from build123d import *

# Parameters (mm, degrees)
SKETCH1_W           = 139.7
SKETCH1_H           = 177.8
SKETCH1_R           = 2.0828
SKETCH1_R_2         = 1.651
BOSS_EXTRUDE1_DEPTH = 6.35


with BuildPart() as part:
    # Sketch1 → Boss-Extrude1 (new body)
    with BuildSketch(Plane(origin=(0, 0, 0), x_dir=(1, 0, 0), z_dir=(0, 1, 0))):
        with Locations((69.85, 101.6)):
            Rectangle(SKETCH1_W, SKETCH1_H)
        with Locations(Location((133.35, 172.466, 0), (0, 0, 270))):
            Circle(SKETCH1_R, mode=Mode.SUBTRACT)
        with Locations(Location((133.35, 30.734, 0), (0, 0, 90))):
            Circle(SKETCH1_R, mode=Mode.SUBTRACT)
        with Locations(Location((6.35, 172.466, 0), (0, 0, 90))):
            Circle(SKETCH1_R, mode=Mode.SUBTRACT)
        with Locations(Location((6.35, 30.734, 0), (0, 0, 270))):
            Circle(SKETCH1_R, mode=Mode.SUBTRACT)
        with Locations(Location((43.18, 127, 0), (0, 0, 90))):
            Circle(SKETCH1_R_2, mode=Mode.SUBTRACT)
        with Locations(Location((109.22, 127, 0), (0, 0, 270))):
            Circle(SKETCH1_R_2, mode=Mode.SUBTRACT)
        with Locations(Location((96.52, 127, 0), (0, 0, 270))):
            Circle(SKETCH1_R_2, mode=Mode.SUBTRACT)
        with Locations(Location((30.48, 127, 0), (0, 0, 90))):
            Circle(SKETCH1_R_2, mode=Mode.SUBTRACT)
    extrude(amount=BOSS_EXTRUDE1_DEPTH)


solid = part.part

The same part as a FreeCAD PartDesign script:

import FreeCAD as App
import Part
import Sketcher
from FreeCAD import Vector
Q = App.Units.Quantity

doc = App.newDocument("Part")
body = doc.addObject("PartDesign::Body", "Body")

sketch1 = body.newObject("Sketcher::SketchObject", "Sketch")
sketch1.AttachmentSupport = (doc.getObject("XZ_Plane"), [""])
sketch1.MapMode = "FlatFace"
sketch1.addGeometry([
    Part.LineSegment(Vector(0, -190.5, 0), Vector(0, -12.7, 0)),
    Part.LineSegment(Vector(0, -12.7, 0), Vector(139.7, -12.7, 0)),
    Part.LineSegment(Vector(139.7, -12.7, 0), Vector(139.7, -190.5, 0)),
    Part.LineSegment(Vector(139.7, -190.5, 0), Vector(0, -190.5, 0)),
    Part.Circle(Vector(6.35, -30.734, 0), Vector(0, 0, 1), 2.0828),
    Part.Circle(Vector(133.35, -30.734, 0), Vector(0, 0, 1), 2.0828),
    Part.Circle(Vector(30.48, -127, 0), Vector(0, 0, 1), 1.651),
    Part.Circle(Vector(43.18, -127, 0), Vector(0, 0, 1), 1.651),
    Part.Circle(Vector(6.35, -172.466, 0), Vector(0, 0, 1), 2.0828),
    Part.Circle(Vector(96.52, -127, 0), Vector(0, 0, 1), 1.651),
    Part.Circle(Vector(109.22, -127, 0), Vector(0, 0, 1), 1.651),
    Part.Circle(Vector(133.35, -172.466, 0), Vector(0, 0, 1), 2.0828),
], False)
sketch1.addConstraint([
    Sketcher.Constraint("Coincident", 0, 2, 1, 1),
    Sketcher.Constraint("Coincident", 1, 2, 2, 1),
    Sketcher.Constraint("Coincident", 2, 2, 3, 1),
    Sketcher.Constraint("Coincident", 3, 2, 0, 1),
    Sketcher.Constraint("Vertical", 0),
    Sketcher.Constraint("Horizontal", 1),
    Sketcher.Constraint("Vertical", 2),
    Sketcher.Constraint("Horizontal", 3),
    Sketcher.Constraint("Equal", 4, 5),
    Sketcher.Constraint("Equal", 6, 7),
    Sketcher.Constraint("Equal", 5, 8),
    Sketcher.Constraint("Equal", 7, 9),
    Sketcher.Constraint("Equal", 9, 10),
    Sketcher.Constraint("Equal", 8, 11),
    Sketcher.Constraint("PointOnObject", 0, 2, -2),
    Sketcher.Constraint("Horizontal", 4, 3, 5, 3),
    Sketcher.Constraint("Horizontal", 6, 3, 7, 3),
    Sketcher.Constraint("Horizontal", 7, 3, 9, 3),
    Sketcher.Constraint("Horizontal", 9, 3, 10, 3),
    Sketcher.Constraint("Horizontal", 8, 3, 11, 3),
    Sketcher.Constraint("Vertical", 4, 3, 8, 3),
    Sketcher.Constraint("Vertical", 5, 3, 11, 3),
    Sketcher.Constraint("Diameter", 6, Q("0.13 in")),
    Sketcher.Constraint("DistanceY", 0, 1, 0, 2, Q("7 in")),
    Sketcher.Constraint("Diameter", 4, Q("0.164 in")),
    Sketcher.Constraint("DistanceX", 1, 1, 1, 2, Q("5.5 in")),
    Sketcher.Constraint("DistanceY", 6, 3, -1, 1, Q("5 in")),
    Sketcher.Constraint("DistanceX", 4, 3, 5, 3, Q("5 in")),
    Sketcher.Constraint("DistanceX", -1, 1, 6, 3, Q("1.2 in")),
    Sketcher.Constraint("DistanceX", -1, 1, 7, 3, Q("1.7 in")),
    Sketcher.Constraint("DistanceX", -1, 1, 9, 3, Q("3.8 in")),
    Sketcher.Constraint("DistanceX", -1, 1, 10, 3, Q("4.3 in")),
    Sketcher.Constraint("DistanceY", 0, 2, -1, 1, Q("0.5 in")),
    Sketcher.Constraint("DistanceX", -1, 1, 4, 3, Q("0.25 in")),
    Sketcher.Constraint("DistanceY", 4, 3, -1, 1, Q("1.21 in")),
    Sketcher.Constraint("DistanceY", 8, 3, -1, 1, Q("6.79 in")),
])
pad1 = body.newObject("PartDesign::Pad", "Pad")
pad1.Profile = sketch1
pad1.Length = Q("0.25 in")
pad1.Reversed = True

doc.recompute()
